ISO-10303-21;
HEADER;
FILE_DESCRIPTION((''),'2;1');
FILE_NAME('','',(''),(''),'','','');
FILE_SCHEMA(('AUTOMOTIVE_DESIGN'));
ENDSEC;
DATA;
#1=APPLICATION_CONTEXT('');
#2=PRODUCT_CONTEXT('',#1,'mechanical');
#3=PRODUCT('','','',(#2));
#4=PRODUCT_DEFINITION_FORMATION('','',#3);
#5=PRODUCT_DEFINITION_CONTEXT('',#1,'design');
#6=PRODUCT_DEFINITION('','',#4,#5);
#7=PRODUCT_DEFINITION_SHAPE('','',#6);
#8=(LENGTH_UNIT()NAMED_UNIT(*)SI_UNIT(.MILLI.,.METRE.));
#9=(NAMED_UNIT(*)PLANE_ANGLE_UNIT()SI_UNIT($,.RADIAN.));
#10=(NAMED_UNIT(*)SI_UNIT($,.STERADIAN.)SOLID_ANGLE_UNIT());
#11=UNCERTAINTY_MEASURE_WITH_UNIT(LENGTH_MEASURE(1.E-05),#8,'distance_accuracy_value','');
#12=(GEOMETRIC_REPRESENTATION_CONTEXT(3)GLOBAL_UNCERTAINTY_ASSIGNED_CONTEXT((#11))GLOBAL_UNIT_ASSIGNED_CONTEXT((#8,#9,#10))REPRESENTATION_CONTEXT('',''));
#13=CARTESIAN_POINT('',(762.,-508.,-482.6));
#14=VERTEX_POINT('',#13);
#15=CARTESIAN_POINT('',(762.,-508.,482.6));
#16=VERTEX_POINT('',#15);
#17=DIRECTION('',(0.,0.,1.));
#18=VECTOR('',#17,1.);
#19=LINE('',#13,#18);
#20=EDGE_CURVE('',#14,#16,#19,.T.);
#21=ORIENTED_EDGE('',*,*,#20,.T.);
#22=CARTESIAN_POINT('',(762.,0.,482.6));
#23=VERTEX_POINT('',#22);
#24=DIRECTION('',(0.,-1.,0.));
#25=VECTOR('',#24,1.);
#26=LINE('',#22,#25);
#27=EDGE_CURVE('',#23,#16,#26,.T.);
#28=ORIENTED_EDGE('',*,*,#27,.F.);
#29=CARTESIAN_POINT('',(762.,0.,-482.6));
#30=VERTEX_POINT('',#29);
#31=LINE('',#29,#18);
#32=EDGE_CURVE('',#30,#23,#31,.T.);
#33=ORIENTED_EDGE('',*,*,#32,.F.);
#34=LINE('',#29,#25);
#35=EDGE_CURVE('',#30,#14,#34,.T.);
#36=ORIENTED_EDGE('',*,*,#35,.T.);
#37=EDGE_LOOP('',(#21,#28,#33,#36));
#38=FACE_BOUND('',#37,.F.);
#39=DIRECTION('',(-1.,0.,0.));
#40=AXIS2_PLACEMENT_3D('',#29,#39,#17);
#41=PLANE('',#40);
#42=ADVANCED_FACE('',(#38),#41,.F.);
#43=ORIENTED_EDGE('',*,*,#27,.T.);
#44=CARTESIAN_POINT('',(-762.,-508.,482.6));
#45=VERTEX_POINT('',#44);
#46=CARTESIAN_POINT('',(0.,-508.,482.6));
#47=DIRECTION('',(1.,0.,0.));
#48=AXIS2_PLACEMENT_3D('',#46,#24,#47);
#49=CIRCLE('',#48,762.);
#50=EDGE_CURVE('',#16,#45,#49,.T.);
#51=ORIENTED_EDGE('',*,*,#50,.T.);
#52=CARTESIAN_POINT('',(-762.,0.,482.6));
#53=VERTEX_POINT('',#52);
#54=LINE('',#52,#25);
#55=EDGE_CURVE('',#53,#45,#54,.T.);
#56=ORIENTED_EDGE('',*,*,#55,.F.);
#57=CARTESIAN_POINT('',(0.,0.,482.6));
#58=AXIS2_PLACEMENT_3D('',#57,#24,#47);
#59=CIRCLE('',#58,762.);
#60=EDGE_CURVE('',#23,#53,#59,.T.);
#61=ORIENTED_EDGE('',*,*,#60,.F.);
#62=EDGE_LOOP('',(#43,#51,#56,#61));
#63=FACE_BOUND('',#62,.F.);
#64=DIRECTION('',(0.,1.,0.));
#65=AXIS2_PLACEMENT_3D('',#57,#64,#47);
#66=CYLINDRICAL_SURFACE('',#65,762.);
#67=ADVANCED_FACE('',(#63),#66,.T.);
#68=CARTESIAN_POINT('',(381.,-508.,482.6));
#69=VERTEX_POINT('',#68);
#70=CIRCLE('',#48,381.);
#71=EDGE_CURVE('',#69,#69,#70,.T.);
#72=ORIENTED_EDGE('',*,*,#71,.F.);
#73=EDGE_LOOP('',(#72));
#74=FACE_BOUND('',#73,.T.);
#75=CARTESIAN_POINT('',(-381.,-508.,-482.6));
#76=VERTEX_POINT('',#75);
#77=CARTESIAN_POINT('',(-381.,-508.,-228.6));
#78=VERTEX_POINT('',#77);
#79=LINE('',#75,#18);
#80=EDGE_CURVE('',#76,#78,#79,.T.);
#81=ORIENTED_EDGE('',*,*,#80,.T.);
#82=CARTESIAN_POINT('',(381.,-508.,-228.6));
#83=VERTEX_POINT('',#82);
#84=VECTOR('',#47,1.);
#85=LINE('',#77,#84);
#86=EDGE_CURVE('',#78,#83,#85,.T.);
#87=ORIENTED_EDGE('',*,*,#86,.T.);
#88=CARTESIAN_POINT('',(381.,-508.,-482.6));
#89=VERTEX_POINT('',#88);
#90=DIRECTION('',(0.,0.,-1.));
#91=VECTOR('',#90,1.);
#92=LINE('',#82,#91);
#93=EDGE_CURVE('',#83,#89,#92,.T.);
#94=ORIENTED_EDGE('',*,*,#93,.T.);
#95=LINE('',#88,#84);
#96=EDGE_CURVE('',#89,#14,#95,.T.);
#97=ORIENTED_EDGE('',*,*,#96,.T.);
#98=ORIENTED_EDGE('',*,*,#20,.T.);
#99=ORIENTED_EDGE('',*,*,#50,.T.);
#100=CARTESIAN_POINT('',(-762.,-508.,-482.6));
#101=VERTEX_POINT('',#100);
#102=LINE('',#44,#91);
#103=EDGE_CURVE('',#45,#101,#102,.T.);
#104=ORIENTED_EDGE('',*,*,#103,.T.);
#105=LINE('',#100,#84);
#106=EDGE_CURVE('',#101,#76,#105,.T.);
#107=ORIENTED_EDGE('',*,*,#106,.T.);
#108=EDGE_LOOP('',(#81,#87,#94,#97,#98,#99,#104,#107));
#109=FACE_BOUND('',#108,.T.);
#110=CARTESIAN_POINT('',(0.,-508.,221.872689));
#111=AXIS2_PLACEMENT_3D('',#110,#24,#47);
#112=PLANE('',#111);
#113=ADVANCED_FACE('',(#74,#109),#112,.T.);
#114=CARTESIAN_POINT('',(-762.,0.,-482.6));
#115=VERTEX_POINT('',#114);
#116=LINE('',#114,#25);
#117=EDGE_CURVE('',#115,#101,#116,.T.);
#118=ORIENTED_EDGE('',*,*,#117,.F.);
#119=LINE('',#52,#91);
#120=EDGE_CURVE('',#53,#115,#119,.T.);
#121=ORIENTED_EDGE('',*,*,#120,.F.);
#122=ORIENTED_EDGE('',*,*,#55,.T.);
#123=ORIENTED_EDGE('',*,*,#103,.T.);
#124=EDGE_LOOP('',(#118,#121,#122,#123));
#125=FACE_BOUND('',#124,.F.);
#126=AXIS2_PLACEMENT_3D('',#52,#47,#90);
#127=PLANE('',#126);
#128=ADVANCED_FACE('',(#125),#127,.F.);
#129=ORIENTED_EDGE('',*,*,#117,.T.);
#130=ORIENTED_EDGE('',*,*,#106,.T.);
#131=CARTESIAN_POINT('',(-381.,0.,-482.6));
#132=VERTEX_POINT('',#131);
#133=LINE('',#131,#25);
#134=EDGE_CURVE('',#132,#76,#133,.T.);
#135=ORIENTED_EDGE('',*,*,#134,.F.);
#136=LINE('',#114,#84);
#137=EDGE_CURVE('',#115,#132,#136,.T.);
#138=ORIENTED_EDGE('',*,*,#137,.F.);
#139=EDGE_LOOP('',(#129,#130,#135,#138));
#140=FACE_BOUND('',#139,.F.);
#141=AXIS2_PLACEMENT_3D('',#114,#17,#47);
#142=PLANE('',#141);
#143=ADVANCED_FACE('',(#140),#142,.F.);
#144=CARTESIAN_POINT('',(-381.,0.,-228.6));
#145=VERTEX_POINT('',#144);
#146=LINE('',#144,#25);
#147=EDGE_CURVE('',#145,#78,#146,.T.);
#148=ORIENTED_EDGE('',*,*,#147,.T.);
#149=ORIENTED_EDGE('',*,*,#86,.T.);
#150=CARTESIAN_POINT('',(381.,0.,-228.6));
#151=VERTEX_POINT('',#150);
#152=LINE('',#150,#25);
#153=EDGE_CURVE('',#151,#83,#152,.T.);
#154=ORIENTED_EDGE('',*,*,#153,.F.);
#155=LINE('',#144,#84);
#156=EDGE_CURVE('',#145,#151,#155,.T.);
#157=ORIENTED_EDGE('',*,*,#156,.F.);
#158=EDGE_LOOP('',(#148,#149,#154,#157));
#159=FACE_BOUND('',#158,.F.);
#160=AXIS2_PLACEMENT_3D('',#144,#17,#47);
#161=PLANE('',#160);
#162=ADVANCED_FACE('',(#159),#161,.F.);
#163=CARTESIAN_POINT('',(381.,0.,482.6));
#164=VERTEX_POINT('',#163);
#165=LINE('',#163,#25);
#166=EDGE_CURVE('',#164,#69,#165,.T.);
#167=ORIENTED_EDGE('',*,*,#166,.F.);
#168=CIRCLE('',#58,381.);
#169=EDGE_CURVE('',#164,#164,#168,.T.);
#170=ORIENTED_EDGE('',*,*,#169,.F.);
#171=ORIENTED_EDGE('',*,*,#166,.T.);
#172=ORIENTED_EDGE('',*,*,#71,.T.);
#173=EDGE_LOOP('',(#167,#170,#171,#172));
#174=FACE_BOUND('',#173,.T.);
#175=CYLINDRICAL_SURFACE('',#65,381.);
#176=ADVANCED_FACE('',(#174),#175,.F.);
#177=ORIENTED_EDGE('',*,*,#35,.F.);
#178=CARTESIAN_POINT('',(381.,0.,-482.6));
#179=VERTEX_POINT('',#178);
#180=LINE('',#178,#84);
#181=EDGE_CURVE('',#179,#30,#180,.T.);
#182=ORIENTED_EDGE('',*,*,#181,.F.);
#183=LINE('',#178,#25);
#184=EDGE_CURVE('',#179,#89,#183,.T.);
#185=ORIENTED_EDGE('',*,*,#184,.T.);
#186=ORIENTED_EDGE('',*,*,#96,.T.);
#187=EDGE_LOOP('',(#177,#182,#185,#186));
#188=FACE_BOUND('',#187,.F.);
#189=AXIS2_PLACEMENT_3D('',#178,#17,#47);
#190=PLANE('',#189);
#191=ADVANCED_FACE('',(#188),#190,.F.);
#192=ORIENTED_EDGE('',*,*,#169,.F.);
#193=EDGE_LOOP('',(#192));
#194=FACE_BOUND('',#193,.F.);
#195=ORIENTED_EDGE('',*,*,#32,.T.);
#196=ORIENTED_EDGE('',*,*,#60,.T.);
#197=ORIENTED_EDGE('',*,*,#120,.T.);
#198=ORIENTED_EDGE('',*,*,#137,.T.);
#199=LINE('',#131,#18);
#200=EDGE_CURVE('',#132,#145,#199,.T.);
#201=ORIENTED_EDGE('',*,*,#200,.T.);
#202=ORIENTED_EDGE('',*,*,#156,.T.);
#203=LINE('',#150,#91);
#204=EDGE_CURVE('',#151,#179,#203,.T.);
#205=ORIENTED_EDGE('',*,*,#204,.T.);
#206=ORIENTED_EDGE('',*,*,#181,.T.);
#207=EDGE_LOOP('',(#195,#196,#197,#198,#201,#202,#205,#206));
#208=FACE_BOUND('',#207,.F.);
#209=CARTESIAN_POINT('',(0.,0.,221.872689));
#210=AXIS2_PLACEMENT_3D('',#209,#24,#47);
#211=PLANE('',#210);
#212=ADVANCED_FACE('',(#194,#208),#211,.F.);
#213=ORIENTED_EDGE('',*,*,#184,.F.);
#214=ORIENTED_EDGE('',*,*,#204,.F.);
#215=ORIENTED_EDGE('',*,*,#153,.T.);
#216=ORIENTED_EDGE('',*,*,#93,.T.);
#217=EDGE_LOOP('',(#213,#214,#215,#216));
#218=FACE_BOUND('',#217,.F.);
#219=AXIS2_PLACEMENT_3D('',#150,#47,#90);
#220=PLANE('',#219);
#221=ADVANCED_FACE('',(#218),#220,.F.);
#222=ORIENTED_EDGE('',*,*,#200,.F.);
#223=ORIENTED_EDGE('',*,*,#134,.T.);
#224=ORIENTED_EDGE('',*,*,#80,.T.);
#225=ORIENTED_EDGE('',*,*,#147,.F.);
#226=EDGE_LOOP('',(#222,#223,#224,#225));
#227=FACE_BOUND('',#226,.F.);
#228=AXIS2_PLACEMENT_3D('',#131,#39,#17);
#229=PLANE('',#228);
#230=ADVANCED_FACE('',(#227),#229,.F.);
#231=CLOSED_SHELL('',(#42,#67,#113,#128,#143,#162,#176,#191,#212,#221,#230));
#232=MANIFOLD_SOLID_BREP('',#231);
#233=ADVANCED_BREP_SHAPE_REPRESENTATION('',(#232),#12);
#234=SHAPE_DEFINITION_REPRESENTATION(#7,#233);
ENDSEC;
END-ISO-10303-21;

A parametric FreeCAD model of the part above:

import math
import FreeCAD as App
import Part
import Sketcher
from FreeCAD import Vector
Q = App.Units.Quantity

doc = App.newDocument("Part")
body = doc.addObject("PartDesign::Body", "Body")

sketch1 = body.newObject("Sketcher::SketchObject", "Sketch")
sketch1.AttachmentSupport = (doc.getObject("XZ_Plane"), [""])
sketch1.MapMode = "FlatFace"
sketch1.addGeometry(Part.LineSegment(Vector(381, -483, 0), Vector(762, -483, 0)), False)
sketch1.addGeometry(Part.LineSegment(Vector(762, -483, 0), Vector(762, 483, 0)), False)
sketch1.addGeometry(Part.ArcOfCircle(Part.Circle(Vector(0, 483, 0), Vector(0, 0, 1), 762), math.radians(0), math.radians(180)), False)
sketch1.addGeometry(Part.LineSegment(Vector(-762, 483, 0), Vector(-762, -483, 0)), False)
sketch1.addGeometry(Part.LineSegment(Vector(-762, -483, 0), Vector(-381, -483, 0)), False)
sketch1.addGeometry(Part.LineSegment(Vector(-381, -483, 0), Vector(-381, -229, 0)), False)
sketch1.addGeometry(Part.LineSegment(Vector(-381, -229, 0), Vector(381, -229, 0)), False)
sketch1.addGeometry(Part.LineSegment(Vector(381, -229, 0), Vector(381, -483, 0)), False)
sketch1.addGeometry(Part.Circle(Vector(0, 483, 0), Vector(0, 0, 1), 381), False)
sketch1.addConstraint(Sketcher.Constraint("Coincident", 0, 2, 1, 1))
sketch1.addConstraint(Sketcher.Constraint("Tangent", 1, 2, 2, 1))
sketch1.addConstraint(Sketcher.Constraint("Tangent", 2, 2, 3, 1))
sketch1.addConstraint(Sketcher.Constraint("Coincident", 3, 2, 4, 1))
sketch1.addConstraint(Sketcher.Constraint("Coincident", 4, 2, 5, 1))
sketch1.addConstraint(Sketcher.Constraint("Coincident", 5, 2, 6, 1))
sketch1.addConstraint(Sketcher.Constraint("Coincident", 6, 2, 7, 1))
sketch1.addConstraint(Sketcher.Constraint("Coincident", 7, 2, 0, 1))
sketch1.addConstraint(Sketcher.Constraint("Horizontal", 0))
sketch1.addConstraint(Sketcher.Constraint("Vertical", 1))
sketch1.addConstraint(Sketcher.Constraint("Vertical", 3))
sketch1.addConstraint(Sketcher.Constraint("Horizontal", 4))
sketch1.addConstraint(Sketcher.Constraint("Vertical", 5))
sketch1.addConstraint(Sketcher.Constraint("Horizontal", 6))
sketch1.addConstraint(Sketcher.Constraint("Vertical", 7))
sketch1.addConstraint(Sketcher.Constraint("Coincident", 8, 3, 2, 3))
sketch1.addConstraint(Sketcher.Constraint("Symmetric", 1, 2, 3, 2, -1, 1))
sketch1.addConstraint(Sketcher.Constraint("Symmetric", 4, 2, 7, 2, -2))
sketch1.addConstraint(Sketcher.Constraint("Diameter", 8, Q("30 in")))
sketch1.addConstraint(Sketcher.Constraint("Radius", 2, Q("30 in")))
sketch1.addConstraint(Sketcher.Constraint("DistanceX", 0, 1, 0, 2, Q("15 in")))
sketch1.addConstraint(Sketcher.Constraint("DistanceY", 1, 1, 1, 2, Q("38 in")))
sketch1.addConstraint(Sketcher.Constraint("DistanceY", 5, 1, 5, 2, Q("10 in")))
pad1 = body.newObject("PartDesign::Pad", "Pad")
pad1.Profile = sketch1
pad1.Length = Q("20 in")

doc.recompute()
